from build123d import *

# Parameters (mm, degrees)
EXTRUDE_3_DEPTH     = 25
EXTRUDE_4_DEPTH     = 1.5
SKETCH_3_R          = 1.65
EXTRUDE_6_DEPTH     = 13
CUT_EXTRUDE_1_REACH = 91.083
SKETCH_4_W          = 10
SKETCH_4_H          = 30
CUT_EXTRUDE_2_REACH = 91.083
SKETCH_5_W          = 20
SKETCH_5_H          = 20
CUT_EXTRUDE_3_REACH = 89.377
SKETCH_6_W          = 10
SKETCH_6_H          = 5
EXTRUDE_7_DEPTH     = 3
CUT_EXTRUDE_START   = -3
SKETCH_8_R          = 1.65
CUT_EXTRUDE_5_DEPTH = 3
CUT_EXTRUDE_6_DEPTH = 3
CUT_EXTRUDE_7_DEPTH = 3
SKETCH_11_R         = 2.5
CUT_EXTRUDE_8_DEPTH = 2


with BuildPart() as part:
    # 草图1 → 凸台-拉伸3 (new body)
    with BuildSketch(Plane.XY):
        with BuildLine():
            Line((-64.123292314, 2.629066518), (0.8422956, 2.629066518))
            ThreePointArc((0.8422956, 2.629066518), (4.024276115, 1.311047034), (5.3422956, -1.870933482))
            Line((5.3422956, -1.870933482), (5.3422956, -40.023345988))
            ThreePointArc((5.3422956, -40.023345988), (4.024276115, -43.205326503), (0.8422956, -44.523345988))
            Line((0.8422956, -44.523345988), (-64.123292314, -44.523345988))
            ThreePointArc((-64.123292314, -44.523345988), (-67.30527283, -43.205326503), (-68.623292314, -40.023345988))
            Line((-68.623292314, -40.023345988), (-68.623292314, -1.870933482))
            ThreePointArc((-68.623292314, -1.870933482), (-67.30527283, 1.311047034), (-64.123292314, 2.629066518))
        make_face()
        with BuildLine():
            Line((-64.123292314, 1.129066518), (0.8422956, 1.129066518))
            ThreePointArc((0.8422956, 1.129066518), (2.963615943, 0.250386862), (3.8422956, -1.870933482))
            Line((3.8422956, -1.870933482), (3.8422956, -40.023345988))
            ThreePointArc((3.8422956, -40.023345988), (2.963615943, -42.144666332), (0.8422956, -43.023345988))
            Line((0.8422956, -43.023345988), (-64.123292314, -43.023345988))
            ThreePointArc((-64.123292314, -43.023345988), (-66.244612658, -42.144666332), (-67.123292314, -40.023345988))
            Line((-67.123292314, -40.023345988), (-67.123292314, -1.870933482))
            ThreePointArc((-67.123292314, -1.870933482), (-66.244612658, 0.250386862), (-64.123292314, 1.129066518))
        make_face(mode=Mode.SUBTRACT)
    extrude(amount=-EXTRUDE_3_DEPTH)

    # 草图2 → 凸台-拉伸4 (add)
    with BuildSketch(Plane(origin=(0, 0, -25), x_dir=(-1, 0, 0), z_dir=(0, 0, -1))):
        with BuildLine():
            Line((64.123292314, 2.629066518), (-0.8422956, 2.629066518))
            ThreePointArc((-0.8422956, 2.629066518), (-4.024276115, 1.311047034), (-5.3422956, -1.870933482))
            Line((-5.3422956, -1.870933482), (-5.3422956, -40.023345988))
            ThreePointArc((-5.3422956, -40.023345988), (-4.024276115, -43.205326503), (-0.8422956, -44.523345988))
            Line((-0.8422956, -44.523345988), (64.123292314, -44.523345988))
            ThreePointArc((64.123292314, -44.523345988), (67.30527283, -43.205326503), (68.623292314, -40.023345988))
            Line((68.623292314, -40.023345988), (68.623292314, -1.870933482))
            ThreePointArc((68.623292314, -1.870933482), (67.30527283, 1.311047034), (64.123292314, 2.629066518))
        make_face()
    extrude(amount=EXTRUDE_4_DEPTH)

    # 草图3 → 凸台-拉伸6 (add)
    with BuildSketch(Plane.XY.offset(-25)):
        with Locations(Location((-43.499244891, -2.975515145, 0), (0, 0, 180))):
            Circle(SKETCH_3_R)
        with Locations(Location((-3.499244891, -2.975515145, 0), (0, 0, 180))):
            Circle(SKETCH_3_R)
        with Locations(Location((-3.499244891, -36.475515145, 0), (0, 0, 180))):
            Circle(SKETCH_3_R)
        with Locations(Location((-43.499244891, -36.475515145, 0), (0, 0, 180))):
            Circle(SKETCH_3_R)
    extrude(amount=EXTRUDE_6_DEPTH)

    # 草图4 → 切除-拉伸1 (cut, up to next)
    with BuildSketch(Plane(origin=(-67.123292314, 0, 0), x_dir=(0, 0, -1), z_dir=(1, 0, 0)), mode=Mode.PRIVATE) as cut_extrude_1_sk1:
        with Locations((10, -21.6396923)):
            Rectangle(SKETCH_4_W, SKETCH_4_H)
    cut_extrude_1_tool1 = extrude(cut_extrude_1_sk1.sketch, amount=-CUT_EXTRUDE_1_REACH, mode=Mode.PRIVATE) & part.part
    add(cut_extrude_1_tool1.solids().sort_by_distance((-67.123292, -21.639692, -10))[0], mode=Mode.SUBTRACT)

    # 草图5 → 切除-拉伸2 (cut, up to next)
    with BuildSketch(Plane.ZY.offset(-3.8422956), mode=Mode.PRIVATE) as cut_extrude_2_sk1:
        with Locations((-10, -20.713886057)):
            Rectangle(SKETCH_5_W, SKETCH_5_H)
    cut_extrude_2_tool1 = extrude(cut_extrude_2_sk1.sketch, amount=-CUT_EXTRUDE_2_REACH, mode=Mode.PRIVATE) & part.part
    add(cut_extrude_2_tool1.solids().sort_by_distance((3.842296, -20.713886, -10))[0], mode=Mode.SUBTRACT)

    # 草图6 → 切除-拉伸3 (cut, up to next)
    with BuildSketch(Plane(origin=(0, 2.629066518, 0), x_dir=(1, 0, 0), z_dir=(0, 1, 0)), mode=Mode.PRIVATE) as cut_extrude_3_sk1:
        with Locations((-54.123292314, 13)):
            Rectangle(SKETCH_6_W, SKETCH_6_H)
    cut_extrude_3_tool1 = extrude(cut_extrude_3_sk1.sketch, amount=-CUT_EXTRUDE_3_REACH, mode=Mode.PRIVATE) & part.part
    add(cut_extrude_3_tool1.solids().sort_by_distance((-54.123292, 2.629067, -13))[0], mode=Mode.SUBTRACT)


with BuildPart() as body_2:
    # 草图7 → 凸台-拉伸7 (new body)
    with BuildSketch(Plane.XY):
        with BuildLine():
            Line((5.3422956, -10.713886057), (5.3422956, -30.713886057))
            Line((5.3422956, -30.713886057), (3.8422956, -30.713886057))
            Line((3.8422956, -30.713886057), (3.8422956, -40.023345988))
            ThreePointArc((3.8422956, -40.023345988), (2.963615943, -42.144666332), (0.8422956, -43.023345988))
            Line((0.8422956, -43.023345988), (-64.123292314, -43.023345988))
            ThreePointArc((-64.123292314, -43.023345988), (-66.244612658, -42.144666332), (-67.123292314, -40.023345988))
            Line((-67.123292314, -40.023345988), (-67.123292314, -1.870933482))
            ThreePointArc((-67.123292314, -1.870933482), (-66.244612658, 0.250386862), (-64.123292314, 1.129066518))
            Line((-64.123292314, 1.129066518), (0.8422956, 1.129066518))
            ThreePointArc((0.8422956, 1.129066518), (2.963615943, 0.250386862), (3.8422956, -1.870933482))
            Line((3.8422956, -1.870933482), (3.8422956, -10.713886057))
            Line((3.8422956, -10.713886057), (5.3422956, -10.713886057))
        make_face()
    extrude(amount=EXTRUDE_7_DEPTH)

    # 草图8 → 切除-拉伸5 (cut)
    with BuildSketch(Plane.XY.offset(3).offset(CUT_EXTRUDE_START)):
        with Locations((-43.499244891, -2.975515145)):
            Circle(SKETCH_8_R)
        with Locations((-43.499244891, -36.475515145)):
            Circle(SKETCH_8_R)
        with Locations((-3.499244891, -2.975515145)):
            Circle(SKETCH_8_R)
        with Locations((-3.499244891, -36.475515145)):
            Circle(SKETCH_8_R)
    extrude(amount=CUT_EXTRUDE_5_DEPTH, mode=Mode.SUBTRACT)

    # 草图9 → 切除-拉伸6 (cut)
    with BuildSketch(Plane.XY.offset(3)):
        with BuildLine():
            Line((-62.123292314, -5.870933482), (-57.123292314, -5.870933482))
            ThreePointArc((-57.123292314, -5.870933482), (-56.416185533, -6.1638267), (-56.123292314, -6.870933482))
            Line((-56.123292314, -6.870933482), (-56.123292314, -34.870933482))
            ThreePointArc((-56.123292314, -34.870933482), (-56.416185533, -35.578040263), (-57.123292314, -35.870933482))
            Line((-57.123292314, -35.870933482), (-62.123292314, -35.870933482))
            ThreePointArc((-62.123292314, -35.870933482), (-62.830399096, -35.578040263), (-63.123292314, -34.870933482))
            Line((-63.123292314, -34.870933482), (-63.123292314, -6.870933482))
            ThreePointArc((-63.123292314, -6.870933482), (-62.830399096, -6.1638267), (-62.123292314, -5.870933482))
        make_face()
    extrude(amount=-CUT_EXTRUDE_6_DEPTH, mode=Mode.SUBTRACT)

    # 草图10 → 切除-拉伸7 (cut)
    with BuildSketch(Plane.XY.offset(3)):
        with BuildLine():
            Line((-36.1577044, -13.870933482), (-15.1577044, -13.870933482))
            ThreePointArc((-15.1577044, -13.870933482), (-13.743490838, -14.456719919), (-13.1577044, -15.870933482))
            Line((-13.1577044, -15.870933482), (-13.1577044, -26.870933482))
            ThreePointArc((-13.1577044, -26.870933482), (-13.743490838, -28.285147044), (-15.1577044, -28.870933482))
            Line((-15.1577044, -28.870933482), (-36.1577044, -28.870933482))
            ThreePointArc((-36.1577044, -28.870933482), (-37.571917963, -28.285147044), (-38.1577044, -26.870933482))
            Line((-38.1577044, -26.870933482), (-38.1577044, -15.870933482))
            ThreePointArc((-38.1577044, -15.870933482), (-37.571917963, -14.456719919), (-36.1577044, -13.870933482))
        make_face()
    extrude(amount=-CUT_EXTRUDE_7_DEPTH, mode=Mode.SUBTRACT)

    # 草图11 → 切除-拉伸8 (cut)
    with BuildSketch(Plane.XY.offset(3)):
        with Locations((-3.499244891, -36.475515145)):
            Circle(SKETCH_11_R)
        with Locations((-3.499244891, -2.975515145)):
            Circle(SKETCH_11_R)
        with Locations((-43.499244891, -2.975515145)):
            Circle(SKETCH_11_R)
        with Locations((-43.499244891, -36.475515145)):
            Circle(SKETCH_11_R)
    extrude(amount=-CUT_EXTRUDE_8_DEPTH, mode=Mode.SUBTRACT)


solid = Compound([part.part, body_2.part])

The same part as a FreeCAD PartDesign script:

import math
import FreeCAD as App
import Part
import Sketcher

V = App.Vector
Q = App.Units.Quantity


def add_polygon(sketch, points):
    """Adds a closed chain of lines whose ends are joined by coincident constraints."""
    first, n = sketch.GeometryCount, len(points)
    for a, b in zip(points, points[1:] + points[:1]):
        sketch.addGeometry(Part.LineSegment(App.Vector(*a, 0), App.Vector(*b, 0)), False)
    for i in range(n):
        sketch.addConstraint(Sketcher.Constraint("Coincident", first + i, 2, first + (i + 1) % n, 1))

doc = App.newDocument("Part")
body = doc.addObject("PartDesign::Body", "Body")

# Sketch on XY plane
sketch1 = doc.addObject("Sketcher::SketchObject", "Sketch")
body.addObject(sketch1)
sketch1.AttachmentSupport = (doc.XY_Plane, [""])
sketch1.MapMode = "FlatFace"
sketch1.addGeometry([
    Part.LineSegment(V(0.8, 2.6, 0), V(-64.1, 2.6, 0)),  # 0
    Part.ArcOfCircle(Part.Circle(V(-64.1, -1.9, 0), V(0, 0, 1), 4.5), math.radians(90), math.radians(180)),  # 1
    Part.LineSegment(V(-68.6, -1.9, 0), V(-68.6, -40, 0)),  # 2
    Part.ArcOfCircle(Part.Circle(V(-64.1, -40, 0), V(0, 0, 1), 4.5), math.radians(180), math.radians(270)),  # 3
    Part.LineSegment(V(-64.1, -44.5, 0), V(0.8, -44.5, 0)),  # 4
    Part.ArcOfCircle(Part.Circle(V(0.8, -40, 0), V(0, 0, 1), 4.5), math.radians(-90), math.radians(0)),  # 5
    Part.LineSegment(V(5.3, -40, 0), V(5.3, -1.9, 0)),  # 6
    Part.ArcOfCircle(Part.Circle(V(0.8, -1.9, 0), V(0, 0, 1), 4.5), math.radians(0), math.radians(90)),  # 7
    Part.LineSegment(V(-64.1, 1.1, 0), V(0.8, 1.1, 0)),  # 8
    Part.ArcOfCircle(Part.Circle(V(0.8, -1.9, 0), V(0, 0, 1), 3), math.radians(0), math.radians(90)),  # 9
    Part.LineSegment(V(3.8, -1.9, 0), V(3.8, -40, 0)),  # 10
    Part.ArcOfCircle(Part.Circle(V(0.8, -40, 0), V(0, 0, 1), 3), math.radians(-90), math.radians(0)),  # 11
    Part.LineSegment(V(0.8, -43, 0), V(-64.1, -43, 0)),  # 12
    Part.ArcOfCircle(Part.Circle(V(-64.1, -40, 0), V(0, 0, 1), 3), math.radians(180), math.radians(270)),  # 13
    Part.LineSegment(V(-67.1, -40, 0), V(-67.1, -1.9, 0)),  # 14
    Part.ArcOfCircle(Part.Circle(V(-64.1, -1.9, 0), V(0, 0, 1), 3), math.radians(90), math.radians(180)),  # 15
], False)
sketch1.addConstraint([
    Sketcher.Constraint("Tangent", 0, 2, 1, 1),
    Sketcher.Constraint("Tangent", 1, 2, 2, 1),
    Sketcher.Constraint("Tangent", 2, 2, 3, 1),
    Sketcher.Constraint("Tangent", 3, 2, 4, 1),
    Sketcher.Constraint("Tangent", 4, 2, 5, 1),
    Sketcher.Constraint("Tangent", 5, 2, 6, 1),
    Sketcher.Constraint("Tangent", 6, 2, 7, 1),
    Sketcher.Constraint("Tangent", 7, 2, 0, 1),
    Sketcher.Constraint("Tangent", 8, 2, 9, 2),
    Sketcher.Constraint("Tangent", 9, 1, 10, 1),
    Sketcher.Constraint("Tangent", 10, 2, 11, 2),
    Sketcher.Constraint("Tangent", 11, 1, 12, 1),
    Sketcher.Constraint("Tangent", 12, 2, 13, 2),
    Sketcher.Constraint("Tangent", 13, 1, 14, 1),
    Sketcher.Constraint("Tangent", 14, 2, 15, 2),
    Sketcher.Constraint("Tangent", 15, 1, 8, 1),
    Sketcher.Constraint("Horizontal", 0),
    Sketcher.Constraint("Vertical", 2),
    Sketcher.Constraint("Horizontal", 4),
    Sketcher.Constraint("Vertical", 6),
    Sketcher.Constraint("Horizontal", 8),
    Sketcher.Constraint("Vertical", 10),
    Sketcher.Constraint("Horizontal", 12),
    Sketcher.Constraint("Vertical", 14),
    Sketcher.Constraint("Coincident", 9, 3, 7, 3),
    Sketcher.Constraint("Coincident", 11, 3, 5, 3),
    Sketcher.Constraint("Coincident", 13, 3, 3, 3),
    Sketcher.Constraint("Equal", 1, 3),
    Sketcher.Constraint("Equal", 3, 5),
    Sketcher.Constraint("Equal", 5, 7),
    Sketcher.Constraint("Equal", 13, 15),
    Sketcher.Constraint("Radius", 9, Q("3 mm")),
    Sketcher.Constraint("Radius", 1, Q("4.5 mm")),
    Sketcher.Constraint("DistanceX", 0, 2, 0, 1, Q("64.965588 mm")),
    Sketcher.Constraint("DistanceY", 2, 2, 2, 1, Q("38.152413 mm")),
    Sketcher.Constraint("DistanceX", 1, 3, -1, 1, Q("64.123292 mm")),
    Sketcher.Constraint("DistanceY", 1, 3, -1, 1, Q("1.870933 mm")),
])
pad1 = doc.addObject("PartDesign::Pad", "Pad")
body.addObject(pad1)
pad1.Profile = sketch1
pad1.Length = 25
pad1.Reversed = True

# Sketch on XY plane
sketch2 = doc.addObject("Sketcher::SketchObject", "Sketch001")
body.addObject(sketch2)
sketch2.AttachmentSupport = (doc.XY_Plane, [""])
sketch2.MapMode = "FlatFace"
sketch2.AttachmentOffset = App.Placement(V(0, 0, -25), App.Rotation())
sketch2.addGeometry([
    Part.LineSegment(V(-64.1, 2.6, 0), V(0.8, 2.6, 0)),  # 0
    Part.ArcOfCircle(Part.Circle(V(0.8, -1.9, 0), V(0, 0, 1), 4.5), math.radians(0), math.radians(90)),  # 1
    Part.LineSegment(V(5.3, -1.9, 0), V(5.3, -40, 0)),  # 2
    Part.ArcOfCircle(Part.Circle(V(0.8, -40, 0), V(0, 0, 1), 4.5), math.radians(-90), math.radians(0)),  # 3
    Part.LineSegment(V(0.8, -44.5, 0), V(-64.1, -44.5, 0)),  # 4
    Part.ArcOfCircle(Part.Circle(V(-64.1, -40, 0), V(0, 0, 1), 4.5), math.radians(180), math.radians(270)),  # 5
    Part.LineSegment(V(-68.6, -40, 0), V(-68.6, -1.9, 0)),  # 6
    Part.ArcOfCircle(Part.Circle(V(-64.1, -1.9, 0), V(0, 0, 1), 4.5), math.radians(90), math.radians(180)),  # 7
], False)
sketch2.addConstraint([
    Sketcher.Constraint("Tangent", 0, 2, 1, 2),
    Sketcher.Constraint("Tangent", 1, 1, 2, 1),
    Sketcher.Constraint("Tangent", 2, 2, 3, 2),
    Sketcher.Constraint("Tangent", 3, 1, 4, 1),
    Sketcher.Constraint("Tangent", 4, 2, 5, 2),
    Sketcher.Constraint("Tangent", 5, 1, 6, 1),
    Sketcher.Constraint("Tangent", 6, 2, 7, 2),
    Sketcher.Constraint("Tangent", 7, 1, 0, 1),
    Sketcher.Constraint("Horizontal", 0),
    Sketcher.Constraint("Vertical", 2),
    Sketcher.Constraint("Horizontal", 4),
    Sketcher.Constraint("Vertical", 6),
    Sketcher.Constraint("Equal", 1, 3),
    Sketcher.Constraint("Equal", 3, 5),
    Sketcher.Constraint("Equal", 5, 7),
    Sketcher.Constraint("Radius", 1, Q("4.5 mm")),
    Sketcher.Constraint("DistanceX", 0, 1, 0, 2, Q("64.965588 mm")),
    Sketcher.Constraint("DistanceY", 2, 2, 2, 1, Q("38.152413 mm")),
    Sketcher.Constraint("DistanceX", -1, 1, 1, 3, Q("0.842296 mm")),
    Sketcher.Constraint("DistanceY", 1, 3, -1, 1, Q("1.870933 mm")),
])
pad2 = doc.addObject("PartDesign::Pad", "Pad001")
body.addObject(pad2)
pad2.Profile = sketch2
pad2.Length = 1.5
pad2.Reversed = True

# Sketch on XY plane
sketch3 = doc.addObject("Sketcher::SketchObject", "Sketch002")
body.addObject(sketch3)
sketch3.AttachmentSupport = (doc.XY_Plane, [""])
sketch3.MapMode = "FlatFace"
sketch3.AttachmentOffset = App.Placement(V(0, 0, -25), App.Rotation())
sketch3.addGeometry([
    Part.Circle(V(-43.5, -3, 0), V(0, 0, 1), 1.6),
    Part.Circle(V(-3.5, -3, 0), V(0, 0, 1), 1.6),
    Part.Circle(V(-3.5, -36.5, 0), V(0, 0, 1), 1.6),
    Part.Circle(V(-43.5, -36.5, 0), V(0, 0, 1), 1.6),
], False)
sketch3.addConstraint([
    Sketcher.Constraint("Equal", 0, 1),
    Sketcher.Constraint("Equal", 1, 2),
    Sketcher.Constraint("Equal", 2, 3),
    Sketcher.Constraint("Horizontal", 0, 3, 1, 3),
    Sketcher.Constraint("Horizontal", 2, 3, 3, 3),
    Sketcher.Constraint("Vertical", 1, 3, 2, 3),
    Sketcher.Constraint("Vertical", 0, 3, 3, 3),
    Sketcher.Constraint("Diameter", 0, Q("3.3 mm")),
    Sketcher.Constraint("DistanceX", 0, 3, 1, 3, Q("40 mm")),
    Sketcher.Constraint("DistanceY", 2, 3, 1, 3, Q("33.5 mm")),
    Sketcher.Constraint("DistanceX", 0, 3, -1, 1, Q("43.499245 mm")),
    Sketcher.Constraint("DistanceY", 0, 3, -1, 1, Q("2.975515 mm")),
])
pad3 = doc.addObject("PartDesign::Pad", "Pad002")
body.addObject(pad3)
pad3.Profile = sketch3
pad3.Length = 13

# Sketch on YZ plane
sketch4 = doc.addObject("Sketcher::SketchObject", "Sketch003")
body.addObject(sketch4)
sketch4.AttachmentSupport = (doc.YZ_Plane, [""])
sketch4.MapMode = "FlatFace"
sketch4.AttachmentOffset = App.Placement(V(0, 0, -67.123292), App.Rotation())
add_polygon(sketch4, [(-7, -5), (-37, -5), (-37, -15), (-7, -15)])  # lines 0-3
sketch4.addConstraint([
    Sketcher.Constraint("Horizontal", 0),
    Sketcher.Constraint("Vertical", 1),
    Sketcher.Constraint("Horizontal", 2),
    Sketcher.Constraint("Vertical", 3),
    Sketcher.Constraint("DistanceX", 0, 2, 0, 1, Q("30 mm")),
    Sketcher.Constraint("DistanceY", 1, 2, 1, 1, Q("10 mm")),
    Sketcher.Constraint("DistanceY", 0, 2, -1, 1, Q("5 mm")),
    Sketcher.Constraint("DistanceX", 0, 2, -1, 1, Q("36.639692 mm")),
])
pocket1 = doc.addObject("PartDesign::Pocket", "Pocket")
body.addObject(pocket1)
pocket1.Profile = sketch4
pocket1.Type = "UpToFirst"

# Sketch on YZ plane
sketch5 = doc.addObject("Sketcher::SketchObject", "Sketch004")
body.addObject(sketch5)
sketch5.AttachmentSupport = (doc.YZ_Plane, [""])
sketch5.MapMode = "FlatFace"
sketch5.AttachmentOffset = App.Placement(V(0, 0, 3.842296), App.Rotation())
add_polygon(sketch5, [(-11, -20), (-31, -20), (-31, 0), (-11, 0)])  # lines 0-3
sketch5.addConstraint([
    Sketcher.Constraint("Horizontal", 0),
    Sketcher.Constraint("Vertical", 1),
    Sketcher.Constraint("Horizontal", 2),
    Sketcher.Constraint("Vertical", 3),
    Sketcher.Constraint("PointOnObject", 1, 2, -1),
    Sketcher.Constraint("Equal", 2, 1),
    Sketcher.Constraint("DistanceX", 0, 2, 0, 1, Q("20 mm")),
    Sketcher.Constraint("DistanceX", 0, 2, -1, 1, Q("30.713886 mm")),
])
pocket2 = doc.addObject("PartDesign::Pocket", "Pocket001")
body.addObject(pocket2)
pocket2.Profile = sketch5
pocket2.Type = "UpToFirst"
pocket2.Reversed = True

# Sketch on XZ plane
sketch6 = doc.addObject("Sketcher::SketchObject", "Sketch005")
body.addObject(sketch6)
sketch6.AttachmentSupport = (doc.XZ_Plane, [""])
sketch6.MapMode = "FlatFace"
sketch6.AttachmentOffset = App.Placement(V(0, 0, -2.629067), App.Rotation())
add_polygon(sketch6, [(-59, -16), (-59, -10), (-49, -10), (-49, -16)])  # lines 0-3
sketch6.addConstraint([
    Sketcher.Constraint("Vertical", 0),
    Sketcher.Constraint("Horizontal", 1),
    Sketcher.Constraint("Vertical", 2),
    Sketcher.Constraint("Horizontal", 3),
    Sketcher.Constraint("DistanceX", 1, 1, 1, 2, Q("10 mm")),
    Sketcher.Constraint("DistanceY", 0, 1, 0, 2, Q("5 mm")),
    Sketcher.Constraint("DistanceY", 0, 2, -1, 1, Q("10.5 mm")),
    Sketcher.Constraint("DistanceX", 0, 2, -1, 1, Q("59.123292 mm")),
])
pocket3 = doc.addObject("PartDesign::Pocket", "Pocket002")
body.addObject(pocket3)
pocket3.Profile = sketch6
pocket3.Type = "UpToFirst"
pocket3.Reversed = True
body2 = doc.addObject("PartDesign::Body", "Body001")

# Sketch on XY plane
sketch7 = doc.addObject("Sketcher::SketchObject", "Sketch006")
body2.addObject(sketch7)
sketch7.AttachmentSupport = (doc.getObject("XY_Plane001"), [""])
sketch7.MapMode = "FlatFace"
sketch7.addGeometry([
    Part.LineSegment(V(5.3, -30.7, 0), V(5.3, -10.7, 0)),  # 0
    Part.LineSegment(V(5.3, -10.7, 0), V(3.8, -10.7, 0)),  # 1
    Part.LineSegment(V(3.8, -10.7, 0), V(3.8, -1.9, 0)),  # 2
    Part.ArcOfCircle(Part.Circle(V(0.8, -1.9, 0), V(0, 0, 1), 3), math.radians(0), math.radians(90)),  # 3
    Part.LineSegment(V(0.8, 1.1, 0), V(-64.1, 1.1, 0)),  # 4
    Part.ArcOfCircle(Part.Circle(V(-64.1, -1.9, 0), V(0, 0, 1), 3), math.radians(90), math.radians(180)),  # 5
    Part.LineSegment(V(-67.1, -1.9, 0), V(-67.1, -40, 0)),  # 6
    Part.ArcOfCircle(Part.Circle(V(-64.1, -40, 0), V(0, 0, 1), 3), math.radians(180), math.radians(270)),  # 7
    Part.LineSegment(V(-64.1, -43, 0), V(0.8, -43, 0)),  # 8
    Part.ArcOfCircle(Part.Circle(V(0.8, -40, 0), V(0, 0, 1), 3), math.radians(-90), math.radians(0)),  # 9
    Part.LineSegment(V(3.8, -40, 0), V(3.8, -30.7, 0)),  # 10
    Part.LineSegment(V(3.8, -30.7, 0), V(5.3, -30.7, 0)),  # 11
], False)
sketch7.addConstraint([
    Sketcher.Constraint("Coincident", 0, 2, 1, 1),
    Sketcher.Constraint("Coincident", 1, 2, 2, 1),
    Sketcher.Constraint("Tangent", 2, 2, 3, 1),
    Sketcher.Constraint("Tangent", 3, 2, 4, 1),
    Sketcher.Constraint("Tangent", 4, 2, 5, 1),
    Sketcher.Constraint("Tangent", 5, 2, 6, 1),
    Sketcher.Constraint("Tangent", 6, 2, 7, 1),
    Sketcher.Constraint("Tangent", 7, 2, 8, 1),
    Sketcher.Constraint("Tangent", 8, 2, 9, 1),
    Sketcher.Constraint("Tangent", 9, 2, 10, 1),
    Sketcher.Constraint("Coincident", 10, 2, 11, 1),
    Sketcher.Constraint("Coincident", 11, 2, 0, 1),
    Sketcher.Constraint("Vertical", 0),
    Sketcher.Constraint("Horizontal", 1),
    Sketcher.Constraint("Vertical", 2),
    Sketcher.Constraint("Horizontal", 4),
    Sketcher.Constraint("Vertical", 6),
    Sketcher.Constraint("Horizontal", 8),
    Sketcher.Constraint("Vertical", 10),
    Sketcher.Constraint("Horizontal", 11),
    Sketcher.Constraint("Equal", 3, 5),
    Sketcher.Constraint("Equal", 5, 7),
    Sketcher.Constraint("Equal", 7, 9),
    Sketcher.Constraint("Vertical", 3, 3, 9, 3),
    Sketcher.Constraint("Radius", 3, Q("3 mm")),
    Sketcher.Constraint("DistanceY", 0, 1, 0, 2, Q("20 mm")),
    Sketcher.Constraint("DistanceX", 1, 2, 1, 1, Q("1.5 mm")),
    Sketcher.Constraint("DistanceY", 10, 1, 10, 2, Q("9.30946 mm")),
    Sketcher.Constraint("DistanceX", 4, 2, 4, 1, Q("64.965588 mm")),
    Sketcher.Constraint("DistanceY", 2, 1, 2, 2, Q("8.842953 mm")),
    Sketcher.Constraint("DistanceX", -1, 1, 3, 3, Q("0.842296 mm")),
    Sketcher.Constraint("DistanceY", 3, 3, -1, 1, Q("1.870933 mm")),
])
pad4 = doc.addObject("PartDesign::Pad", "Pad003")
body2.addObject(pad4)
pad4.Profile = sketch7
pad4.Length = 3

# Sketch on XY plane
sketch8 = doc.addObject("Sketcher::SketchObject", "Sketch007")
body2.addObject(sketch8)
sketch8.AttachmentSupport = (doc.getObject("XY_Plane001"), [""])
sketch8.MapMode = "FlatFace"
sketch8.addGeometry([
    Part.Circle(V(-43.5, -3, 0), V(0, 0, 1), 1.6),
    Part.Circle(V(-43.5, -36.5, 0), V(0, 0, 1), 1.6),
    Part.Circle(V(-3.5, -3, 0), V(0, 0, 1), 1.6),
    Part.Circle(V(-3.5, -36.5, 0), V(0, 0, 1), 1.6),
], False)
sketch8.addConstraint([
    Sketcher.Constraint("Equal", 0, 1),
    Sketcher.Constraint("Equal", 1, 2),
    Sketcher.Constraint("Equal", 2, 3),
    Sketcher.Constraint("Horizontal", 0, 3, 2, 3),
    Sketcher.Constraint("Horizontal", 1, 3, 3, 3),
    Sketcher.Constraint("Vertical", 0, 3, 1, 3),
    Sketcher.Constraint("Vertical", 2, 3, 3, 3),
    Sketcher.Constraint("Diameter", 0, Q("3.3 mm")),
    Sketcher.Constraint("DistanceX", 0, 3, 2, 3, Q("40 mm")),
    Sketcher.Constraint("DistanceY", 1, 3, 0, 3, Q("33.5 mm")),
    Sketcher.Constraint("DistanceX", 0, 3, -1, 1, Q("43.499245 mm")),
    Sketcher.Constraint("DistanceY", 0, 3, -1, 1, Q("2.975515 mm")),
])
pocket4 = doc.addObject("PartDesign::Pocket", "Pocket003")
body2.addObject(pocket4)
pocket4.Profile = sketch8
pocket4.Length = 3
pocket4.Reversed = True

# Sketch on XY plane
sketch9 = doc.addObject("Sketcher::SketchObject", "Sketch008")
body2.addObject(sketch9)
sketch9.AttachmentSupport = (doc.getObject("XY_Plane001"), [""])
sketch9.MapMode = "FlatFace"
sketch9.AttachmentOffset = App.Placement(V(0, 0, 3), App.Rotation())
sketch9.addGeometry([
    Part.LineSegment(V(-57.1, -5.9, 0), V(-62.1, -5.9, 0)),  # 0
    Part.ArcOfCircle(Part.Circle(V(-62.1, -6.9, 0), V(0, 0, 1), 1), math.radians(90), math.radians(180)),  # 1
    Part.LineSegment(V(-63.1, -6.9, 0), V(-63.1, -34.9, 0)),  # 2
    Part.ArcOfCircle(Part.Circle(V(-62.1, -34.9, 0), V(0, 0, 1), 1), math.radians(180), math.radians(270)),  # 3
    Part.LineSegment(V(-62.1, -35.9, 0), V(-57.1, -35.9, 0)),  # 4
    Part.ArcOfCircle(Part.Circle(V(-57.1, -34.9, 0), V(0, 0, 1), 1), math.radians(-90), math.radians(0)),  # 5
    Part.LineSegment(V(-56.1, -34.9, 0), V(-56.1, -6.9, 0)),  # 6
    Part.ArcOfCircle(Part.Circle(V(-57.1, -6.9, 0), V(0, 0, 1), 1), math.radians(0), math.radians(90)),  # 7
], False)
sketch9.addConstraint([
    Sketcher.Constraint("Tangent", 0, 2, 1, 1),
    Sketcher.Constraint("Tangent", 1, 2, 2, 1),
    Sketcher.Constraint("Tangent", 2, 2, 3, 1),
    Sketcher.Constraint("Tangent", 3, 2, 4, 1),
    Sketcher.Constraint("Tangent", 4, 2, 5, 1),
    Sketcher.Constraint("Tangent", 5, 2, 6, 1),
    Sketcher.Constraint("Tangent", 6, 2, 7, 1),
    Sketcher.Constraint("Tangent", 7, 2, 0, 1),
    Sketcher.Constraint("Horizontal", 0),
    Sketcher.Constraint("Vertical", 2),
    Sketcher.Constraint("Horizontal", 4),
    Sketcher.Constraint("Vertical", 6),
    Sketcher.Constraint("Equal", 1, 3),
    Sketcher.Constraint("Equal", 3, 5),
    Sketcher.Constraint("Equal", 5, 7),
    Sketcher.Constraint("Radius", 1, Q("1 mm")),
    Sketcher.Constraint("DistanceX", 0, 2, 0, 1, Q("5 mm")),
    Sketcher.Constraint("DistanceY", 2, 2, 2, 1, Q("28 mm")),
    Sketcher.Constraint("DistanceX", 1, 3, -1, 1, Q("62.123292 mm")),
    Sketcher.Constraint("DistanceY", 1, 3, -1, 1, Q("6.870933 mm")),
])
pocket5 = doc.addObject("PartDesign::Pocket", "Pocket004")
body2.addObject(pocket5)
pocket5.Profile = sketch9
pocket5.Length = 3

# Sketch on XY plane
sketch10 = doc.addObject("Sketcher::SketchObject", "Sketch009")
body2.addObject(sketch10)
sketch10.AttachmentSupport = (doc.getObject("XY_Plane001"), [""])
sketch10.MapMode = "FlatFace"
sketch10.AttachmentOffset = App.Placement(V(0, 0, 3), App.Rotation())
sketch10.addGeometry([
    Part.LineSegment(V(-15.2, -13.9, 0), V(-36.2, -13.9, 0)),  # 0
    Part.ArcOfCircle(Part.Circle(V(-36.2, -15.9, 0), V(0, 0, 1), 2), math.radians(90), math.radians(180)),  # 1
    Part.LineSegment(V(-38.2, -15.9, 0), V(-38.2, -26.9, 0)),  # 2
    Part.ArcOfCircle(Part.Circle(V(-36.2, -26.9, 0), V(0, 0, 1), 2), math.radians(180), math.radians(270)),  # 3
    Part.LineSegment(V(-36.2, -28.9, 0), V(-15.2, -28.9, 0)),  # 4
    Part.ArcOfCircle(Part.Circle(V(-15.2, -26.9, 0), V(0, 0, 1), 2), math.radians(-90), math.radians(0)),  # 5
    Part.LineSegment(V(-13.2, -26.9, 0), V(-13.2, -15.9, 0)),  # 6
    Part.ArcOfCircle(Part.Circle(V(-15.2, -15.9, 0), V(0, 0, 1), 2), math.radians(0), math.radians(90)),  # 7
], False)
sketch10.addConstraint([
    Sketcher.Constraint("Tangent", 0, 2, 1, 1),
    Sketcher.Constraint("Tangent", 1, 2, 2, 1),
    Sketcher.Constraint("Tangent", 2, 2, 3, 1),
    Sketcher.Constraint("Tangent", 3, 2, 4, 1),
    Sketcher.Constraint("Tangent", 4, 2, 5, 1),
    Sketcher.Constraint("Tangent", 5, 2, 6, 1),
    Sketcher.Constraint("Tangent", 6, 2, 7, 1),
    Sketcher.Constraint("Tangent", 7, 2, 0, 1),
    Sketcher.Constraint("Horizontal", 0),
    Sketcher.Constraint("Vertical", 2),
    Sketcher.Constraint("Horizontal", 4),
    Sketcher.Constraint("Vertical", 6),
    Sketcher.Constraint("Equal", 1, 3),
    Sketcher.Constraint("Equal", 3, 5),
    Sketcher.Constraint("Equal", 5, 7),
    Sketcher.Constraint("Radius", 1, Q("2 mm")),
    Sketcher.Constraint("DistanceX", 0, 2, 0, 1, Q("21 mm")),
    Sketcher.Constraint("DistanceY", 2, 2, 2, 1, Q("11 mm")),
    Sketcher.Constraint("DistanceX", 1, 3, -1, 1, Q("36.157704 mm")),
    Sketcher.Constraint("DistanceY", 1, 3, -1, 1, Q("15.870933 mm")),
])
pocket6 = doc.addObject("PartDesign::Pocket", "Pocket005")
body2.addObject(pocket6)
pocket6.Profile = sketch10
pocket6.Length = 3

# Sketch on XY plane
sketch11 = doc.addObject("Sketcher::SketchObject", "Sketch010")
body2.addObject(sketch11)
sketch11.AttachmentSupport = (doc.getObject("XY_Plane001"), [""])
sketch11.MapMode = "FlatFace"
sketch11.AttachmentOffset = App.Placement(V(0, 0, 3), App.Rotation())
sketch11.addGeometry([
    Part.Circle(V(-3.5, -36.5, 0), V(0, 0, 1), 2.5),
    Part.Circle(V(-3.5, -3, 0), V(0, 0, 1), 2.5),
    Part.Circle(V(-43.5, -3, 0), V(0, 0, 1), 2.5),
    Part.Circle(V(-43.5, -36.5, 0), V(0, 0, 1), 2.5),
], False)
sketch11.addConstraint([
    Sketcher.Constraint("Equal", 0, 1),
    Sketcher.Constraint("Equal", 1, 2),
    Sketcher.Constraint("Equal", 2, 3),
    Sketcher.Constraint("Horizontal", 1, 3, 2, 3),
    Sketcher.Constraint("Horizontal", 0, 3, 3, 3),
    Sketcher.Constraint("Vertical", 0, 3, 1, 3),
    Sketcher.Constraint("Vertical", 2, 3, 3, 3),
    Sketcher.Constraint("Diameter", 0, Q("5 mm")),
    Sketcher.Constraint("DistanceX", 2, 3, 1, 3, Q("40 mm")),
    Sketcher.Constraint("DistanceY", 0, 3, 1, 3, Q("33.5 mm")),
    Sketcher.Constraint("DistanceX", 0, 3, -1, 1, Q("3.499245 mm")),
    Sketcher.Constraint("DistanceY", 0, 3, -1, 1, Q("36.475515 mm")),
])
pocket7 = doc.addObject("PartDesign::Pocket", "Pocket006")
body2.addObject(pocket7)
pocket7.Profile = sketch11
pocket7.Length = 2

doc.recompute()
